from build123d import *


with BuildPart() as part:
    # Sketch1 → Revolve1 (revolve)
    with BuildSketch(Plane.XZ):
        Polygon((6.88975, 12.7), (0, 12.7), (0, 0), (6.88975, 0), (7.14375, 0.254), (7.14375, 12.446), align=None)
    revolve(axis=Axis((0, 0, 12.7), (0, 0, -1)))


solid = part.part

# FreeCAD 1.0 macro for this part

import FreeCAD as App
import Part
import Sketcher
Q = App.Units.Quantity


def add_polygon(sketch, points):
    """Adds a closed chain of lines whose ends are joined by coincident constraints."""
    first, n = sketch.GeometryCount, len(points)
    for a, b in zip(points, points[1:] + points[:1]):
        sketch.addGeometry(Part.LineSegment(App.Vector(*a, 0), App.Vector(*b, 0)), False)
    for i in range(n):
        sketch.addConstraint(Sketcher.Constraint("Coincident", first + i, 2, first + (i + 1) % n, 1))

doc = App.newDocument("Part")
body = doc.addObject("PartDesign::Body", "Body")

sketch1 = body.newObject("Sketcher::SketchObject", "Sketch")
sketch1.AttachmentSupport = (doc.getObject("XZ_Plane"), [""])
sketch1.MapMode = "FlatFace"
add_polygon(sketch1, [(6.89, 12.7), (0, 12.7), (0, 0), (6.89, 0), (7.14, 0.25), (7.14, 12.45)])
sketch1.addConstraint([
    Sketcher.Constraint("Horizontal", 0),
    Sketcher.Constraint("Vertical", 1),
    Sketcher.Constraint("Horizontal", 2),
    Sketcher.Constraint("Vertical", 4),
    Sketcher.Constraint("Coincident", 1, 2, -1, 1),
    Sketcher.Constraint("Perpendicular", 3, 5),
    Sketcher.Constraint("Vertical", 2, 2, 5, 2),
    Sketcher.Constraint("Equal", 3, 5),
    Sketcher.Constraint("DistanceY", 1, 2, 1, 1, Q("0.5 in")),
    Sketcher.Constraint("DistanceY", 4, 1, 4, 2, Q("0.48 in")),
    Sketcher.Constraint("DistanceX", -1, 1, 3, 2, Q("0.28125 in")),
])
revolution = body.newObject("PartDesign::Revolution", "Revolution")
revolution.Profile = sketch1
revolution.ReferenceAxis = (sketch1, ["V_Axis"])
revolution.Angle = 360

doc.recompute()
